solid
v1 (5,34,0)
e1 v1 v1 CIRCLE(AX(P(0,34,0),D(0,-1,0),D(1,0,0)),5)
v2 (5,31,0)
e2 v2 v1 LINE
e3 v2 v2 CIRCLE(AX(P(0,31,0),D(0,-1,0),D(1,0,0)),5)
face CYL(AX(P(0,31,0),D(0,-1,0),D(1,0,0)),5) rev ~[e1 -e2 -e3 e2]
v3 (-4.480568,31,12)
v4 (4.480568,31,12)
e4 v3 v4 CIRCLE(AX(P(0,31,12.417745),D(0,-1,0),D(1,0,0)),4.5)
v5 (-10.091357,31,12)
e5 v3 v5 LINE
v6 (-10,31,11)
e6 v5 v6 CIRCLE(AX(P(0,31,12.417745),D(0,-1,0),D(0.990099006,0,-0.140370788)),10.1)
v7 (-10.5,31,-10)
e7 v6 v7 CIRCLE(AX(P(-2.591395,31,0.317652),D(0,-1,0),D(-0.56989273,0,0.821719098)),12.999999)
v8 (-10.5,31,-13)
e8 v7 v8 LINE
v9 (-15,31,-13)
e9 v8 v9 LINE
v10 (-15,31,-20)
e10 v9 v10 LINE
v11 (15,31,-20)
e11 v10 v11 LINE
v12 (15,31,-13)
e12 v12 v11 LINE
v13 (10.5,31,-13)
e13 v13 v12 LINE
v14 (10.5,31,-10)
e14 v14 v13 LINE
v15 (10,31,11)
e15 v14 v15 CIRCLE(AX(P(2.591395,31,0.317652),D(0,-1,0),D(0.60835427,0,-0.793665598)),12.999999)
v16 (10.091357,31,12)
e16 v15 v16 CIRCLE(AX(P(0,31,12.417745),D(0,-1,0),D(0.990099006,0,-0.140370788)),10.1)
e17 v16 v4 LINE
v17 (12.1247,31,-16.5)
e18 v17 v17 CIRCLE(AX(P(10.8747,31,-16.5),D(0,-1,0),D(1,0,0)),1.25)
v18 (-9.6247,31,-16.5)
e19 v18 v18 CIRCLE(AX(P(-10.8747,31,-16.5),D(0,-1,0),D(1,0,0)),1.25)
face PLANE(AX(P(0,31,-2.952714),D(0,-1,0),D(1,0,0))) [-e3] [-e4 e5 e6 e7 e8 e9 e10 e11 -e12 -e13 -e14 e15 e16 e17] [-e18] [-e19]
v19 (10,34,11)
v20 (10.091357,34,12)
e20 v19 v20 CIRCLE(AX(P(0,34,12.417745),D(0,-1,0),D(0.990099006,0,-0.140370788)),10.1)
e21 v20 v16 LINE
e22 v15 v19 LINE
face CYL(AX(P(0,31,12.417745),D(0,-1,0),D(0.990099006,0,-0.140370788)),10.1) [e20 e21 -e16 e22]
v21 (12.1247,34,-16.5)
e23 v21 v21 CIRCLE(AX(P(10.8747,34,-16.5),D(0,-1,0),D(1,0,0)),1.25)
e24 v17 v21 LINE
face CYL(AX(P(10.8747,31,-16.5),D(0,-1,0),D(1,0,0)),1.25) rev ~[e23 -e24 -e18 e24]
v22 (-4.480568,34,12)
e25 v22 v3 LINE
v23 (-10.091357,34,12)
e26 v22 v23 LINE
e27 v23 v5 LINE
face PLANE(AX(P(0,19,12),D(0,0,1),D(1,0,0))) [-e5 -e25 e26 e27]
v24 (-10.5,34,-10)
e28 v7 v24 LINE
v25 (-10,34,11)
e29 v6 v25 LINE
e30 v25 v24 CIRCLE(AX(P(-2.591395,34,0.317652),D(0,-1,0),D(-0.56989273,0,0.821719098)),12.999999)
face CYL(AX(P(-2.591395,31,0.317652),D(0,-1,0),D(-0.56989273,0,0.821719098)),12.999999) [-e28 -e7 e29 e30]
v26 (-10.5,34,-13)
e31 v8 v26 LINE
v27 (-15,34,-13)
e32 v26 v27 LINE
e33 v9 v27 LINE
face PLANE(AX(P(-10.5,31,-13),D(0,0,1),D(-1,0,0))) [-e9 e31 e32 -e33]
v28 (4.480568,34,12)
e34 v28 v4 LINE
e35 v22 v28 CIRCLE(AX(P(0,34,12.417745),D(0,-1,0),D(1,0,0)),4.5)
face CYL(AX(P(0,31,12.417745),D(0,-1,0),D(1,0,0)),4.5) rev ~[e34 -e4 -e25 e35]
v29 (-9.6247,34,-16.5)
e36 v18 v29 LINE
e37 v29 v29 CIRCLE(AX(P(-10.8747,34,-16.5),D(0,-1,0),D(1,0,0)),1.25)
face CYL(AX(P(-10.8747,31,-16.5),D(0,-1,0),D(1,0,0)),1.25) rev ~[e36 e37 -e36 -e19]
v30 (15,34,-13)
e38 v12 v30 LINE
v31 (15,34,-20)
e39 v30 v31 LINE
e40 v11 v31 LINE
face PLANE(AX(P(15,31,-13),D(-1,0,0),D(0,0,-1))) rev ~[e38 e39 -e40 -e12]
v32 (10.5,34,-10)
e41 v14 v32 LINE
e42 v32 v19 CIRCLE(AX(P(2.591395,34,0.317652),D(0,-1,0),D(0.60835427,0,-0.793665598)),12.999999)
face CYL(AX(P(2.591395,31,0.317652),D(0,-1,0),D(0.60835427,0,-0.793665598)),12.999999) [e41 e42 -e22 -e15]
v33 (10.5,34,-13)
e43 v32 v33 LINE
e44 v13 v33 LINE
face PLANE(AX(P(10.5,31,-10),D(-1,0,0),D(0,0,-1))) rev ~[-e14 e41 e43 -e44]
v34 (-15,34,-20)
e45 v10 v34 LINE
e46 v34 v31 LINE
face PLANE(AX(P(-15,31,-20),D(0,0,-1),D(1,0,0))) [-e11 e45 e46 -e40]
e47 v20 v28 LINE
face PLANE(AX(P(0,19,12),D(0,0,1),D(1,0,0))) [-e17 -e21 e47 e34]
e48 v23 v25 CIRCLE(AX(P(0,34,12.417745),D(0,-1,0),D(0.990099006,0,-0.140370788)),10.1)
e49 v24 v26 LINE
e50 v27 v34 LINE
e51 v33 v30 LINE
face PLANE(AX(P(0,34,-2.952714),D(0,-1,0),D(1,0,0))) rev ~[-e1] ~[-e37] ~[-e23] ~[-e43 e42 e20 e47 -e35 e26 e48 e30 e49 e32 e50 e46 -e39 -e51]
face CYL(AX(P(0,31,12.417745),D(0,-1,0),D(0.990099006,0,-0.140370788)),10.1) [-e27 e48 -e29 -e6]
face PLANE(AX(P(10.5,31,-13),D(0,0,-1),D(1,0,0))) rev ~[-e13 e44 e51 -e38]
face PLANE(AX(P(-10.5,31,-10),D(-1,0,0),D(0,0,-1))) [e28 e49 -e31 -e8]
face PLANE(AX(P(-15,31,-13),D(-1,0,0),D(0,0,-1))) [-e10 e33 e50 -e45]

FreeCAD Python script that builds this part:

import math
import FreeCAD as App
import Part
import Sketcher
from FreeCAD import Vector
Q = App.Units.Quantity

doc = App.newDocument("Part")
body = doc.addObject("PartDesign::Body", "Body")

sketch1 = doc.addObject("Sketcher::SketchObject", "Sketch")
body.addObject(sketch1)
sketch1.AttachmentSupport = (doc.XY_Plane, [""])
sketch1.MapMode = "FlatFace"
sketch1.AttachmentOffset = App.Placement(Vector(0, 0, 12), App.Rotation())
sketch1.addGeometry([
    Part.LineSegment(Vector(-12, 40, 0), Vector(-12, -2, 0)),
    Part.LineSegment(Vector(-12, -2, 0), Vector(12, -2, 0)),
    Part.LineSegment(Vector(12, -2, 0), Vector(12, 40, 0)),
    Part.LineSegment(Vector(12, 40, 0), Vector(-12, 40, 0)),
], False)
sketch1.addConstraint([
    Sketcher.Constraint("Coincident", 0, 2, 1, 1),
    Sketcher.Constraint("Coincident", 1, 2, 2, 1),
    Sketcher.Constraint("Coincident", 2, 2, 3, 1),
    Sketcher.Constraint("Coincident", 3, 2, 0, 1),
    Sketcher.Constraint("Vertical", 0),
    Sketcher.Constraint("Horizontal", 1),
    Sketcher.Constraint("Vertical", 2),
    Sketcher.Constraint("Horizontal", 3),
    Sketcher.Constraint("DistanceX", 1, 1, 1, 2, Q("24 mm")),
    Sketcher.Constraint("DistanceY", 0, 2, 0, 1, Q("42 mm")),
    Sketcher.Constraint("DistanceX", 0, 2, -1, 1, Q("12 mm")),
    Sketcher.Constraint("DistanceY", 0, 2, -1, 1, Q("2 mm")),
])
pad1 = doc.addObject("PartDesign::Pad", "Pad")
body.addObject(pad1)
pad1.Profile = sketch1
pad1.Length = 13
body2 = doc.addObject("PartDesign::Body", "Body001")

sketch2 = doc.addObject("Sketcher::SketchObject", "Sketch001")
body2.addObject(sketch2)
sketch2.AttachmentSupport = (doc.getObject("XZ_Plane001"), [""])
sketch2.MapMode = "FlatFace"
sketch2.addGeometry([
    Part.ArcOfCircle(Part.Circle(Vector(0, 12.417745, 0), Vector(0, 0, 1), 10.1), math.radians(-8.069303), math.radians(188.069303)),
    Part.ArcOfCircle(Part.Circle(Vector(-2.591395, 0.317652, 0), Vector(0, 0, 1), 12.999999), math.radians(124.742746), math.radians(232.529399)),
    Part.LineSegment(Vector(-10.5, -10, 0), Vector(-10.5, -13, 0)),
    Part.LineSegment(Vector(-10.5, -13, 0), Vector(-15, -13, 0)),
    Part.LineSegment(Vector(-15, -13, 0), Vector(-15, -20, 0)),
    Part.LineSegment(Vector(-15, -20, 0), Vector(15, -20, 0)),
    Part.LineSegment(Vector(15, -20, 0), Vector(15, -13, 0)),
    Part.LineSegment(Vector(15, -13, 0), Vector(10.5, -13, 0)),
    Part.LineSegment(Vector(10.5, -13, 0), Vector(10.5, -10, 0)),
    Part.ArcOfCircle(Part.Circle(Vector(2.591395, 0.317652, 0), Vector(0, 0, 1), 12.999999), math.radians(-52.529399), math.radians(55.257254)),
    Part.Circle(Vector(-10.8747, -16.5, 0), Vector(0, 0, 1), 1.25),
    Part.Circle(Vector(10.8747, -16.5, 0), Vector(0, 0, 1), 1.25),
    Part.Circle(Vector(0, 0, 0), Vector(0, 0, 1), 5),
    Part.Circle(Vector(0, 12.417745, 0), Vector(0, 0, 1), 4.5),
], False)
sketch2.addConstraint([
    Sketcher.Constraint("Coincident", 0, 2, 1, 1),
    Sketcher.Constraint("Coincident", 1, 2, 2, 1),
    Sketcher.Constraint("Coincident", 2, 2, 3, 1),
    Sketcher.Constraint("Coincident", 3, 2, 4, 1),
    Sketcher.Constraint("Coincident", 4, 2, 5, 1),
    Sketcher.Constraint("Coincident", 5, 2, 6, 1),
    Sketcher.Constraint("Coincident", 6, 2, 7, 1),
    Sketcher.Constraint("Coincident", 7, 2, 8, 1),
    Sketcher.Constraint("Coincident", 8, 2, 9, 1),
    Sketcher.Constraint("Coincident", 9, 2, 0, 1),
    Sketcher.Constraint("Vertical", 2),
    Sketcher.Constraint("Horizontal", 3),
    Sketcher.Constraint("Vertical", 4),
    Sketcher.Constraint("Horizontal", 5),
    Sketcher.Constraint("Vertical", 6),
    Sketcher.Constraint("Horizontal", 7),
    Sketcher.Constraint("Vertical", 8),
    Sketcher.Constraint("Coincident", 12, 3, -1, 1),
    Sketcher.Constraint("Coincident", 13, 3, 0, 3),
    Sketcher.Constraint("Equal", 1, 9),
    Sketcher.Constraint("Equal", 10, 11),
    Sketcher.Constraint("Symmetric", 1, 3, 9, 3, -2),
    Sketcher.Constraint("Symmetric", 10, 3, 11, 3, -2),
    Sketcher.Constraint("Symmetric", 3, 2, 6, 2, -2),
    Sketcher.Constraint("PointOnObject", 0, 3, -2),
    Sketcher.Constraint("Horizontal", 1, 2, 8, 2),
    Sketcher.Constraint("Diameter", 12, Q("10 mm")),
    Sketcher.Constraint("Diameter", 13, Q("9 mm")),
    Sketcher.Constraint("Radius", 1, Q("12.999999 mm")),
    Sketcher.Constraint("Diameter", 10, Q("2.5 mm")),
    Sketcher.Constraint("Radius", 0, Q("10.1 mm")),
    Sketcher.Constraint("DistanceX", 5, 1, 5, 2, Q("30 mm")),
    Sketcher.Constraint("DistanceY", 2, 2, 2, 1, Q("3 mm")),
    Sketcher.Constraint("DistanceY", 4, 2, 4, 1, Q("7 mm")),
    Sketcher.Constraint("DistanceX", 3, 2, 3, 1, Q("4.5 mm")),
    Sketcher.Constraint("DistanceX", 0, 2, -1, 1, Q("10 mm")),
    Sketcher.Constraint("DistanceY", -1, 1, 0, 2, Q("11 mm")),
    Sketcher.Constraint("DistanceY", 1, 2, -1, 1, Q("10 mm")),
    Sketcher.Constraint("DistanceY", 10, 3, -1, 1, Q("16.5 mm")),
    Sketcher.Constraint("DistanceX", 10, 3, -1, 1, Q("10.8747 mm")),
])
pad2 = doc.addObject("PartDesign::Pad", "Pad001")
body2.addObject(pad2)
pad2.Profile = sketch2
pad2.Length = 3
pad2.Reversed = True
body3 = doc.addObject("PartDesign::Body", "Body002")
doc.recompute()

body2.Placement = App.Placement(Vector(0, 31, 0), App.Rotation(Vector(0, 0, 1), 0))
boolean = doc.addObject("PartDesign::Boolean", "Boolean")
body3.addObject(boolean)
boolean.Type = "Fuse"
boolean.addObjects([body2])
body4 = doc.addObject("PartDesign::Body", "Body003")

sketch3 = doc.addObject("Sketcher::SketchObject", "Sketch002")
body4.addObject(sketch3)
sketch3.AttachmentSupport = (doc.getObject("XY_Plane003"), [""])
sketch3.MapMode = "FlatFace"
sketch3.AttachmentOffset = App.Placement(Vector(0, 0, 19.5), App.Rotation())
sketch3.addGeometry([
    Part.LineSegment(Vector(-1.5, 31, 0), Vector(-1.5, 29, 0)),
    Part.LineSegment(Vector(-1.5, 29, 0), Vector(1.5, 29, 0)),
    Part.LineSegment(Vector(1.5, 29, 0), Vector(1.5, 31, 0)),
    Part.LineSegment(Vector(1.5, 31, 0), Vector(-1.5, 31, 0)),
], False)
sketch3.addConstraint([
    Sketcher.Constraint("Coincident", 0, 2, 1, 1),
    Sketcher.Constraint("Coincident", 1, 2, 2, 1),
    Sketcher.Constraint("Coincident", 2, 2, 3, 1),
    Sketcher.Constraint("Coincident", 3, 2, 0, 1),
    Sketcher.Constraint("Vertical", 0),
    Sketcher.Constraint("Horizontal", 1),
    Sketcher.Constraint("Vertical", 2),
    Sketcher.Constraint("Horizontal", 3),
    Sketcher.Constraint("DistanceX", 1, 1, 1, 2, Q("3 mm")),
    Sketcher.Constraint("DistanceY", 0, 2, 0, 1, Q("2 mm")),
    Sketcher.Constraint("DistanceY", -1, 1, 0, 2, Q("29 mm")),
    Sketcher.Constraint("DistanceX", 0, 2, -1, 1, Q("1.5 mm")),
])
pad3 = doc.addObject("PartDesign::Pad", "Pad002")
body4.addObject(pad3)
pad3.Profile = sketch3
pad3.Length = 2
doc.recompute()

boolean2 = doc.addObject("PartDesign::Boolean", "Boolean001")
body4.addObject(boolean2)
boolean2.Type = "Fuse"
boolean2.addObjects([body3])
doc.recompute()

boolean3 = doc.addObject("PartDesign::Boolean", "Boolean002")
body4.addObject(boolean3)
boolean3.Type = "Cut"
boolean3.addObjects([body])

doc.recompute()
